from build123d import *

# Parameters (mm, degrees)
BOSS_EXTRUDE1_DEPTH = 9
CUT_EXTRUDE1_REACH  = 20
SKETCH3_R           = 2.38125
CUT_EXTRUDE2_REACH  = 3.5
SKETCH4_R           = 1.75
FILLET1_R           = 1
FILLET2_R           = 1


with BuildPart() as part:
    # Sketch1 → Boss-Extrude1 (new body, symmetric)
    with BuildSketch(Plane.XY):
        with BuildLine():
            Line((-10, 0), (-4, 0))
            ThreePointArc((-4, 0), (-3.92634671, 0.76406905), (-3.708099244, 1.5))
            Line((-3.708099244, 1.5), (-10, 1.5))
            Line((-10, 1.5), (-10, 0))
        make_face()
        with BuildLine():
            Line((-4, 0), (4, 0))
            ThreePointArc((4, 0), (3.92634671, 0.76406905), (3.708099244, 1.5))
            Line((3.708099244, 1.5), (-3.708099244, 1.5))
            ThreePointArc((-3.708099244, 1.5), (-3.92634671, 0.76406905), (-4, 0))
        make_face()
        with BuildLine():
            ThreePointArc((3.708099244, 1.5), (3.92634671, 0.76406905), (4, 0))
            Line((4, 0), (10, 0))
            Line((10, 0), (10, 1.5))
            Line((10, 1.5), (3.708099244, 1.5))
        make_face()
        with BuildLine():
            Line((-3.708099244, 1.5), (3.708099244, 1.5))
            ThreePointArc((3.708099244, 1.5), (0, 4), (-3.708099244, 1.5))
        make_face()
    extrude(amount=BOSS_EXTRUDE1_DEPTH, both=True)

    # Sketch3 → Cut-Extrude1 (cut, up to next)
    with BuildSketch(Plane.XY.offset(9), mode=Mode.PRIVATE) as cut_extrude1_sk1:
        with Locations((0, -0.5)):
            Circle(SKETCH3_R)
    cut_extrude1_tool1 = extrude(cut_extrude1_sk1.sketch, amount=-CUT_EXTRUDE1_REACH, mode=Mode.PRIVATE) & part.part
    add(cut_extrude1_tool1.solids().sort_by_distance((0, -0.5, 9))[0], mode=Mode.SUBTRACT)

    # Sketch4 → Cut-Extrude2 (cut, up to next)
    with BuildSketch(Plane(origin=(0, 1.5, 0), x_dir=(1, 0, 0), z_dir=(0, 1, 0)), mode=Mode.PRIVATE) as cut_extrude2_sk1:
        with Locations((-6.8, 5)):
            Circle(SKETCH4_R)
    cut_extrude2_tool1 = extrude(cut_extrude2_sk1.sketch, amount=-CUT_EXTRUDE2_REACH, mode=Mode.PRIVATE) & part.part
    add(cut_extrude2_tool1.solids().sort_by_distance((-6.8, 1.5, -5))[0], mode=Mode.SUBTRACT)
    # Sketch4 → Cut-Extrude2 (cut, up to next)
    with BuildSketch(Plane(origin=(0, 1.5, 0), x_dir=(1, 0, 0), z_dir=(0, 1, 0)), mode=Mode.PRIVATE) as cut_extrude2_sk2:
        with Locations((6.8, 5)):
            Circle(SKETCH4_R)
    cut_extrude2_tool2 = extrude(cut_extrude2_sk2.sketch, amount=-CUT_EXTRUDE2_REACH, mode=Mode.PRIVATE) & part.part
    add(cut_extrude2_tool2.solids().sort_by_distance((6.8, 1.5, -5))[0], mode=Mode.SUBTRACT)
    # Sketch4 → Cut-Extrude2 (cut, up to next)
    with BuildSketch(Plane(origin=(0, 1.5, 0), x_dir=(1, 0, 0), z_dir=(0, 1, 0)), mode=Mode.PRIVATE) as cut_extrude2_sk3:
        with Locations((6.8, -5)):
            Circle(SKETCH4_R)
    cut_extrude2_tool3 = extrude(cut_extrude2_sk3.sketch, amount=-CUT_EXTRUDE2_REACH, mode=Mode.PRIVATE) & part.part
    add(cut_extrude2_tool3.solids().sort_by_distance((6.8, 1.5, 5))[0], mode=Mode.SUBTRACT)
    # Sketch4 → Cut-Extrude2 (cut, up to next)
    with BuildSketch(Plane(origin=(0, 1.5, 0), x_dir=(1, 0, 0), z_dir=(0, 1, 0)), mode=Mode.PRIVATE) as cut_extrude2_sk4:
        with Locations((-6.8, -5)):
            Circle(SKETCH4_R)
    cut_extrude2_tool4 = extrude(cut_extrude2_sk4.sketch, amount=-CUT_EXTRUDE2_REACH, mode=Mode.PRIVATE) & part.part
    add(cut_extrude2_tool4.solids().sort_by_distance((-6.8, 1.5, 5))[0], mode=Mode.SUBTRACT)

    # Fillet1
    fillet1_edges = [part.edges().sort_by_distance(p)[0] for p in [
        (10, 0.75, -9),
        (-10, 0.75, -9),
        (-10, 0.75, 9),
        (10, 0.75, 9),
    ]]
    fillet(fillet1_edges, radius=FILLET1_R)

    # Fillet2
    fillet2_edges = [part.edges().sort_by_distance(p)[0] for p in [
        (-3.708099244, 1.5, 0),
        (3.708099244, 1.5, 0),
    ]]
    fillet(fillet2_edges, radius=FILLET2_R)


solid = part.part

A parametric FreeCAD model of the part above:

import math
import FreeCAD as App
import Part
import Sketcher
from FreeCAD import Vector
Q = App.Units.Quantity


def edges_at(feature, points):
    """Names of the edges that pass closest to the given points."""
    edges = feature.Shape.Edges
    near = lambda p: min(range(len(edges)), key=lambda i: edges[i].distToShape(Part.Vertex(*p))[0])
    return sorted({f"Edge{near(p) + 1}" for p in points})

doc = App.newDocument("Part")
body = doc.addObject("PartDesign::Body", "Body")

# Sketch on XY plane
sketch1 = body.newObject("Sketcher::SketchObject", "Sketch")
sketch1.AttachmentSupport = (doc.getObject("XY_Plane"), [""])
sketch1.MapMode = "FlatFace"
sketch1.addGeometry(Part.LineSegment(Vector(-10, 0, 0), Vector(10, 0, 0)), False)
sketch1.addGeometry(Part.LineSegment(Vector(10, 0, 0), Vector(10, 1.5, 0)), False)
sketch1.addGeometry(Part.LineSegment(Vector(10, 1.5, 0), Vector(3.7, 1.5, 0)), False)
sketch1.addGeometry(Part.ArcOfCircle(Part.Circle(Vector(0, 0, 0), Vector(0, 0, 1), 4), math.radians(22), math.radians(158)), False)
sketch1.addGeometry(Part.LineSegment(Vector(-3.7, 1.5, 0), Vector(-10, 1.5, 0)), False)
sketch1.addGeometry(Part.LineSegment(Vector(-10, 1.5, 0), Vector(-10, 0, 0)), False)
sketch1.addConstraint(Sketcher.Constraint("Coincident", 0, 2, 1, 1))
sketch1.addConstraint(Sketcher.Constraint("Coincident", 1, 2, 2, 1))
sketch1.addConstraint(Sketcher.Constraint("Coincident", 2, 2, 3, 1))
sketch1.addConstraint(Sketcher.Constraint("Coincident", 3, 2, 4, 1))
sketch1.addConstraint(Sketcher.Constraint("Coincident", 4, 2, 5, 1))
sketch1.addConstraint(Sketcher.Constraint("Coincident", 5, 2, 0, 1))
sketch1.addConstraint(Sketcher.Constraint("Horizontal", 0))
sketch1.addConstraint(Sketcher.Constraint("Vertical", 1))
sketch1.addConstraint(Sketcher.Constraint("Horizontal", 2))
sketch1.addConstraint(Sketcher.Constraint("Horizontal", 4))
sketch1.addConstraint(Sketcher.Constraint("Vertical", 5))
sketch1.addConstraint(Sketcher.Constraint("Coincident", 3, 3, -1, 1))
sketch1.addConstraint(Sketcher.Constraint("Symmetric", 0, 2, 5, 2, -1, 1))
sketch1.addConstraint(Sketcher.Constraint("Horizontal", 2, 2, 3, 2))
sketch1.addConstraint(Sketcher.Constraint("Radius", 3, Q("4 mm")))
sketch1.addConstraint(Sketcher.Constraint("DistanceX", 0, 1, 0, 2, Q("20 mm")))
sketch1.addConstraint(Sketcher.Constraint("DistanceY", 1, 1, 1, 2, Q("1.5 mm")))
pad1 = body.newObject("PartDesign::Pad", "Pad")
pad1.Profile = sketch1
pad1.Length = 18
pad1.Midplane = True

# Sketch on XY plane
sketch2 = body.newObject("Sketcher::SketchObject", "Sketch001")
sketch2.AttachmentSupport = (doc.getObject("XY_Plane"), [""])
sketch2.MapMode = "FlatFace"
sketch2.AttachmentOffset = App.Placement(Vector(0, 0, 9), App.Rotation())
sketch2.addGeometry(Part.Circle(Vector(0, -0.5, 0), Vector(0, 0, 1), 2.4), False)
sketch2.addConstraint(Sketcher.Constraint("PointOnObject", 0, 3, -2))
sketch2.addConstraint(Sketcher.Constraint("Diameter", 0, Q("4.7625 mm")))
sketch2.addConstraint(Sketcher.Constraint("DistanceY", 0, 3, -1, 1, Q("0.5 mm")))
pocket1 = body.newObject("PartDesign::Pocket", "Pocket")
pocket1.Profile = sketch2
pocket1.Length = 18

# Sketch on XZ plane
sketch3 = body.newObject("Sketcher::SketchObject", "Sketch002")
sketch3.AttachmentSupport = (doc.getObject("XZ_Plane"), [""])
sketch3.MapMode = "FlatFace"
sketch3.AttachmentOffset = App.Placement(Vector(0, 0, -1.5), App.Rotation())
sketch3.addGeometry(Part.Circle(Vector(-6.8, -5, 0), Vector(0, 0, 1), 1.8), False)
sketch3.addConstraint(Sketcher.Constraint("Diameter", 0, Q("3.5 mm")))
sketch3.addConstraint(Sketcher.Constraint("DistanceY", 0, 3, -1, 1, Q("5 mm")))
sketch3.addConstraint(Sketcher.Constraint("DistanceX", 0, 3, -1, 1, Q("6.8 mm")))
pocket2 = body.newObject("PartDesign::Pocket", "Pocket001")
pocket2.Profile = sketch3
pocket2.Type = "UpToFirst"
pocket2.Reversed = True

# Sketch on XZ plane
sketch4 = body.newObject("Sketcher::SketchObject", "Sketch003")
sketch4.AttachmentSupport = (doc.getObject("XZ_Plane"), [""])
sketch4.MapMode = "FlatFace"
sketch4.AttachmentOffset = App.Placement(Vector(0, 0, -1.5), App.Rotation())
sketch4.addGeometry(Part.Circle(Vector(6.8, -5, 0), Vector(0, 0, 1), 1.8), False)
sketch4.addConstraint(Sketcher.Constraint("Diameter", 0, Q("3.5 mm")))
sketch4.addConstraint(Sketcher.Constraint("DistanceY", 0, 3, -1, 1, Q("5 mm")))
sketch4.addConstraint(Sketcher.Constraint("DistanceX", -1, 1, 0, 3, Q("6.8 mm")))
pocket3 = body.newObject("PartDesign::Pocket", "Pocket002")
pocket3.Profile = sketch4
pocket3.Type = "UpToFirst"
pocket3.Reversed = True

# Sketch on XZ plane
sketch5 = body.newObject("Sketcher::SketchObject", "Sketch004")
sketch5.AttachmentSupport = (doc.getObject("XZ_Plane"), [""])
sketch5.MapMode = "FlatFace"
sketch5.AttachmentOffset = App.Placement(Vector(0, 0, -1.5), App.Rotation())
sketch5.addGeometry(Part.Circle(Vector(6.8, 5, 0), Vector(0, 0, 1), 1.8), False)
sketch5.addConstraint(Sketcher.Constraint("Diameter", 0, Q("3.5 mm")))
sketch5.addConstraint(Sketcher.Constraint("DistanceY", -1, 1, 0, 3, Q("5 mm")))
sketch5.addConstraint(Sketcher.Constraint("DistanceX", -1, 1, 0, 3, Q("6.8 mm")))
pocket4 = body.newObject("PartDesign::Pocket", "Pocket003")
pocket4.Profile = sketch5
pocket4.Type = "UpToFirst"
pocket4.Reversed = True

# Sketch on XZ plane
sketch6 = body.newObject("Sketcher::SketchObject", "Sketch005")
sketch6.AttachmentSupport = (doc.getObject("XZ_Plane"), [""])
sketch6.MapMode = "FlatFace"
sketch6.AttachmentOffset = App.Placement(Vector(0, 0, -1.5), App.Rotation())
sketch6.addGeometry(Part.Circle(Vector(-6.8, 5, 0), Vector(0, 0, 1), 1.8), False)
sketch6.addConstraint(Sketcher.Constraint("Diameter", 0, Q("3.5 mm")))
sketch6.addConstraint(Sketcher.Constraint("DistanceY", -1, 1, 0, 3, Q("5 mm")))
sketch6.addConstraint(Sketcher.Constraint("DistanceX", 0, 3, -1, 1, Q("6.8 mm")))
pocket5 = body.newObject("PartDesign::Pocket", "Pocket004")
pocket5.Profile = sketch6
pocket5.Type = "UpToFirst"
pocket5.Reversed = True
doc.recompute()

fillet = body.newObject("PartDesign::Fillet", "Fillet")
fillet.Base = (pocket5, edges_at(pocket5, [
    (10, 0.75, -9),
    (-10, 0.75, -9),
    (-10, 0.75, 9),
    (10, 0.75, 9),
]))
fillet.Radius = 1
doc.recompute()

fillet2 = body.newObject("PartDesign::Fillet", "Fillet001")
fillet2.Base = (fillet, edges_at(fillet, [(-3.708, 1.5, 0), (3.708, 1.5, 0)]))
fillet2.Radius = 1

doc.recompute()
